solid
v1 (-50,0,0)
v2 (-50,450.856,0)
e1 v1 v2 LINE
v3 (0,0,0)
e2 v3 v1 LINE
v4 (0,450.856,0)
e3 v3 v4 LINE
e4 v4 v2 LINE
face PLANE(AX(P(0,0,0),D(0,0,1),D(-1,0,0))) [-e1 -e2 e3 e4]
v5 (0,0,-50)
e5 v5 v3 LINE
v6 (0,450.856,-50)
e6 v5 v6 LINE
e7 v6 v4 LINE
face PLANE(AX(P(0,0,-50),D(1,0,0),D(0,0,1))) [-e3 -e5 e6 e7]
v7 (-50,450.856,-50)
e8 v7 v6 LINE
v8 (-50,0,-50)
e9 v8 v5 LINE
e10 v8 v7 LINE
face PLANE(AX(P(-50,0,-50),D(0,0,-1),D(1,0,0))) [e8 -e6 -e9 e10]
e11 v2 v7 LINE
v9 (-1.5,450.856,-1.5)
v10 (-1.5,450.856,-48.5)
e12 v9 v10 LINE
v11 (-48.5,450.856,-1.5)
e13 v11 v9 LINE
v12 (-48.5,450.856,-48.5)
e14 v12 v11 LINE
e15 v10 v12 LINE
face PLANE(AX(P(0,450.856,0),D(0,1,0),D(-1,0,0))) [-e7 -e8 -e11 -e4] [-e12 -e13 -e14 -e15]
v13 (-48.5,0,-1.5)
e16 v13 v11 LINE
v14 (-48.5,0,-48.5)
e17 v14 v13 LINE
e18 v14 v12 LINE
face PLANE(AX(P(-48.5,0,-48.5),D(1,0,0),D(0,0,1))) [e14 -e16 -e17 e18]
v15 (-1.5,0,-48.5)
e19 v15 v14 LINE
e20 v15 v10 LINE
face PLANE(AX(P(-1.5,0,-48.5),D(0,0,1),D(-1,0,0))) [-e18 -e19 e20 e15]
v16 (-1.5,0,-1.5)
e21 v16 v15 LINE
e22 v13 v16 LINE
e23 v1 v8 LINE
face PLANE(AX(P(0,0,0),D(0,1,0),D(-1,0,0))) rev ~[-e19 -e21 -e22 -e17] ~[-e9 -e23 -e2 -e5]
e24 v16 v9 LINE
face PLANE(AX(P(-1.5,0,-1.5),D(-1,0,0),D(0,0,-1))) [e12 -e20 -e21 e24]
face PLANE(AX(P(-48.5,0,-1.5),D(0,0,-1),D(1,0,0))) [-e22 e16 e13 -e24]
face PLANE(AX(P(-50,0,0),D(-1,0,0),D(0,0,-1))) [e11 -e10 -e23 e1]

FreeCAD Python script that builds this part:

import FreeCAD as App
import Part
import Sketcher
Q = App.Units.Quantity


def add_polygon(sketch, points):
    """Adds a closed chain of lines whose ends are joined by coincident constraints."""
    first, n = sketch.GeometryCount, len(points)
    for a, b in zip(points, points[1:] + points[:1]):
        sketch.addGeometry(Part.LineSegment(App.Vector(*a, 0), App.Vector(*b, 0)), False)
    for i in range(n):
        sketch.addConstraint(Sketcher.Constraint("Coincident", first + i, 2, first + (i + 1) % n, 1))

doc = App.newDocument("Part")
params = doc.addObject("Spreadsheet::Sheet", "Params")
for row, (alias, value) in enumerate([
    ("sketch1_width", "50 mm"),
    ("pad1_length", "450.856 mm"),
], start=1):
    params.set(f"A{row}", alias)
    params.set(f"B{row}", "=" + value)
    params.setAlias(f"B{row}", alias)

body = doc.addObject("PartDesign::Body", "Body")

# Sketch on XZ plane
sketch1 = body.newObject("Sketcher::SketchObject", "Sketch")
sketch1.AttachmentSupport = (doc.getObject("XZ_Plane"), [""])
sketch1.MapMode = "FlatFace"
add_polygon(sketch1, [(-50, 0), (0, 0), (0, -50), (-50, -50)])  # lines 0-3
add_polygon(sketch1, [(-48, -48), (-2, -48), (-2, -2), (-48, -2)])  # lines 4-7
sketch1.addConstraint(Sketcher.Constraint("Horizontal", 0))
sketch1.addConstraint(Sketcher.Constraint("Vertical", 1))
sketch1.addConstraint(Sketcher.Constraint("Horizontal", 2))
sketch1.addConstraint(Sketcher.Constraint("Vertical", 3))
sketch1.addConstraint(Sketcher.Constraint("Horizontal", 4))
sketch1.addConstraint(Sketcher.Constraint("Vertical", 5))
sketch1.addConstraint(Sketcher.Constraint("Horizontal", 6))
sketch1.addConstraint(Sketcher.Constraint("Vertical", 7))
sketch1.addConstraint(Sketcher.Constraint("Coincident", 0, 2, -1, 1))
sketch1.addConstraint(Sketcher.Constraint("Equal", 2, 1))
sketch1.addConstraint(Sketcher.Constraint("Equal", 6, 5))
sketch1.addConstraint(Sketcher.Constraint("DistanceX", 0, 1, 0, 2, Q("50 mm")))
sketch1.addConstraint(Sketcher.Constraint("DistanceX", 4, 2, -1, 1, Q("1.5 mm")))
sketch1.addConstraint(Sketcher.Constraint("DistanceY", 5, 2, -1, 1, Q("1.5 mm")))
sketch1.addConstraint(Sketcher.Constraint("DistanceY", 1, 2, 4, 2, Q("1.5 mm")))
sketch1.setExpression("Constraints[19]", "Params.sketch1_width")
pad1 = body.newObject("PartDesign::Pad", "Pad")
pad1.Profile = sketch1
pad1.setExpression("Length", "Params.pad1_length")
pad1.Reversed = True

doc.recompute()
